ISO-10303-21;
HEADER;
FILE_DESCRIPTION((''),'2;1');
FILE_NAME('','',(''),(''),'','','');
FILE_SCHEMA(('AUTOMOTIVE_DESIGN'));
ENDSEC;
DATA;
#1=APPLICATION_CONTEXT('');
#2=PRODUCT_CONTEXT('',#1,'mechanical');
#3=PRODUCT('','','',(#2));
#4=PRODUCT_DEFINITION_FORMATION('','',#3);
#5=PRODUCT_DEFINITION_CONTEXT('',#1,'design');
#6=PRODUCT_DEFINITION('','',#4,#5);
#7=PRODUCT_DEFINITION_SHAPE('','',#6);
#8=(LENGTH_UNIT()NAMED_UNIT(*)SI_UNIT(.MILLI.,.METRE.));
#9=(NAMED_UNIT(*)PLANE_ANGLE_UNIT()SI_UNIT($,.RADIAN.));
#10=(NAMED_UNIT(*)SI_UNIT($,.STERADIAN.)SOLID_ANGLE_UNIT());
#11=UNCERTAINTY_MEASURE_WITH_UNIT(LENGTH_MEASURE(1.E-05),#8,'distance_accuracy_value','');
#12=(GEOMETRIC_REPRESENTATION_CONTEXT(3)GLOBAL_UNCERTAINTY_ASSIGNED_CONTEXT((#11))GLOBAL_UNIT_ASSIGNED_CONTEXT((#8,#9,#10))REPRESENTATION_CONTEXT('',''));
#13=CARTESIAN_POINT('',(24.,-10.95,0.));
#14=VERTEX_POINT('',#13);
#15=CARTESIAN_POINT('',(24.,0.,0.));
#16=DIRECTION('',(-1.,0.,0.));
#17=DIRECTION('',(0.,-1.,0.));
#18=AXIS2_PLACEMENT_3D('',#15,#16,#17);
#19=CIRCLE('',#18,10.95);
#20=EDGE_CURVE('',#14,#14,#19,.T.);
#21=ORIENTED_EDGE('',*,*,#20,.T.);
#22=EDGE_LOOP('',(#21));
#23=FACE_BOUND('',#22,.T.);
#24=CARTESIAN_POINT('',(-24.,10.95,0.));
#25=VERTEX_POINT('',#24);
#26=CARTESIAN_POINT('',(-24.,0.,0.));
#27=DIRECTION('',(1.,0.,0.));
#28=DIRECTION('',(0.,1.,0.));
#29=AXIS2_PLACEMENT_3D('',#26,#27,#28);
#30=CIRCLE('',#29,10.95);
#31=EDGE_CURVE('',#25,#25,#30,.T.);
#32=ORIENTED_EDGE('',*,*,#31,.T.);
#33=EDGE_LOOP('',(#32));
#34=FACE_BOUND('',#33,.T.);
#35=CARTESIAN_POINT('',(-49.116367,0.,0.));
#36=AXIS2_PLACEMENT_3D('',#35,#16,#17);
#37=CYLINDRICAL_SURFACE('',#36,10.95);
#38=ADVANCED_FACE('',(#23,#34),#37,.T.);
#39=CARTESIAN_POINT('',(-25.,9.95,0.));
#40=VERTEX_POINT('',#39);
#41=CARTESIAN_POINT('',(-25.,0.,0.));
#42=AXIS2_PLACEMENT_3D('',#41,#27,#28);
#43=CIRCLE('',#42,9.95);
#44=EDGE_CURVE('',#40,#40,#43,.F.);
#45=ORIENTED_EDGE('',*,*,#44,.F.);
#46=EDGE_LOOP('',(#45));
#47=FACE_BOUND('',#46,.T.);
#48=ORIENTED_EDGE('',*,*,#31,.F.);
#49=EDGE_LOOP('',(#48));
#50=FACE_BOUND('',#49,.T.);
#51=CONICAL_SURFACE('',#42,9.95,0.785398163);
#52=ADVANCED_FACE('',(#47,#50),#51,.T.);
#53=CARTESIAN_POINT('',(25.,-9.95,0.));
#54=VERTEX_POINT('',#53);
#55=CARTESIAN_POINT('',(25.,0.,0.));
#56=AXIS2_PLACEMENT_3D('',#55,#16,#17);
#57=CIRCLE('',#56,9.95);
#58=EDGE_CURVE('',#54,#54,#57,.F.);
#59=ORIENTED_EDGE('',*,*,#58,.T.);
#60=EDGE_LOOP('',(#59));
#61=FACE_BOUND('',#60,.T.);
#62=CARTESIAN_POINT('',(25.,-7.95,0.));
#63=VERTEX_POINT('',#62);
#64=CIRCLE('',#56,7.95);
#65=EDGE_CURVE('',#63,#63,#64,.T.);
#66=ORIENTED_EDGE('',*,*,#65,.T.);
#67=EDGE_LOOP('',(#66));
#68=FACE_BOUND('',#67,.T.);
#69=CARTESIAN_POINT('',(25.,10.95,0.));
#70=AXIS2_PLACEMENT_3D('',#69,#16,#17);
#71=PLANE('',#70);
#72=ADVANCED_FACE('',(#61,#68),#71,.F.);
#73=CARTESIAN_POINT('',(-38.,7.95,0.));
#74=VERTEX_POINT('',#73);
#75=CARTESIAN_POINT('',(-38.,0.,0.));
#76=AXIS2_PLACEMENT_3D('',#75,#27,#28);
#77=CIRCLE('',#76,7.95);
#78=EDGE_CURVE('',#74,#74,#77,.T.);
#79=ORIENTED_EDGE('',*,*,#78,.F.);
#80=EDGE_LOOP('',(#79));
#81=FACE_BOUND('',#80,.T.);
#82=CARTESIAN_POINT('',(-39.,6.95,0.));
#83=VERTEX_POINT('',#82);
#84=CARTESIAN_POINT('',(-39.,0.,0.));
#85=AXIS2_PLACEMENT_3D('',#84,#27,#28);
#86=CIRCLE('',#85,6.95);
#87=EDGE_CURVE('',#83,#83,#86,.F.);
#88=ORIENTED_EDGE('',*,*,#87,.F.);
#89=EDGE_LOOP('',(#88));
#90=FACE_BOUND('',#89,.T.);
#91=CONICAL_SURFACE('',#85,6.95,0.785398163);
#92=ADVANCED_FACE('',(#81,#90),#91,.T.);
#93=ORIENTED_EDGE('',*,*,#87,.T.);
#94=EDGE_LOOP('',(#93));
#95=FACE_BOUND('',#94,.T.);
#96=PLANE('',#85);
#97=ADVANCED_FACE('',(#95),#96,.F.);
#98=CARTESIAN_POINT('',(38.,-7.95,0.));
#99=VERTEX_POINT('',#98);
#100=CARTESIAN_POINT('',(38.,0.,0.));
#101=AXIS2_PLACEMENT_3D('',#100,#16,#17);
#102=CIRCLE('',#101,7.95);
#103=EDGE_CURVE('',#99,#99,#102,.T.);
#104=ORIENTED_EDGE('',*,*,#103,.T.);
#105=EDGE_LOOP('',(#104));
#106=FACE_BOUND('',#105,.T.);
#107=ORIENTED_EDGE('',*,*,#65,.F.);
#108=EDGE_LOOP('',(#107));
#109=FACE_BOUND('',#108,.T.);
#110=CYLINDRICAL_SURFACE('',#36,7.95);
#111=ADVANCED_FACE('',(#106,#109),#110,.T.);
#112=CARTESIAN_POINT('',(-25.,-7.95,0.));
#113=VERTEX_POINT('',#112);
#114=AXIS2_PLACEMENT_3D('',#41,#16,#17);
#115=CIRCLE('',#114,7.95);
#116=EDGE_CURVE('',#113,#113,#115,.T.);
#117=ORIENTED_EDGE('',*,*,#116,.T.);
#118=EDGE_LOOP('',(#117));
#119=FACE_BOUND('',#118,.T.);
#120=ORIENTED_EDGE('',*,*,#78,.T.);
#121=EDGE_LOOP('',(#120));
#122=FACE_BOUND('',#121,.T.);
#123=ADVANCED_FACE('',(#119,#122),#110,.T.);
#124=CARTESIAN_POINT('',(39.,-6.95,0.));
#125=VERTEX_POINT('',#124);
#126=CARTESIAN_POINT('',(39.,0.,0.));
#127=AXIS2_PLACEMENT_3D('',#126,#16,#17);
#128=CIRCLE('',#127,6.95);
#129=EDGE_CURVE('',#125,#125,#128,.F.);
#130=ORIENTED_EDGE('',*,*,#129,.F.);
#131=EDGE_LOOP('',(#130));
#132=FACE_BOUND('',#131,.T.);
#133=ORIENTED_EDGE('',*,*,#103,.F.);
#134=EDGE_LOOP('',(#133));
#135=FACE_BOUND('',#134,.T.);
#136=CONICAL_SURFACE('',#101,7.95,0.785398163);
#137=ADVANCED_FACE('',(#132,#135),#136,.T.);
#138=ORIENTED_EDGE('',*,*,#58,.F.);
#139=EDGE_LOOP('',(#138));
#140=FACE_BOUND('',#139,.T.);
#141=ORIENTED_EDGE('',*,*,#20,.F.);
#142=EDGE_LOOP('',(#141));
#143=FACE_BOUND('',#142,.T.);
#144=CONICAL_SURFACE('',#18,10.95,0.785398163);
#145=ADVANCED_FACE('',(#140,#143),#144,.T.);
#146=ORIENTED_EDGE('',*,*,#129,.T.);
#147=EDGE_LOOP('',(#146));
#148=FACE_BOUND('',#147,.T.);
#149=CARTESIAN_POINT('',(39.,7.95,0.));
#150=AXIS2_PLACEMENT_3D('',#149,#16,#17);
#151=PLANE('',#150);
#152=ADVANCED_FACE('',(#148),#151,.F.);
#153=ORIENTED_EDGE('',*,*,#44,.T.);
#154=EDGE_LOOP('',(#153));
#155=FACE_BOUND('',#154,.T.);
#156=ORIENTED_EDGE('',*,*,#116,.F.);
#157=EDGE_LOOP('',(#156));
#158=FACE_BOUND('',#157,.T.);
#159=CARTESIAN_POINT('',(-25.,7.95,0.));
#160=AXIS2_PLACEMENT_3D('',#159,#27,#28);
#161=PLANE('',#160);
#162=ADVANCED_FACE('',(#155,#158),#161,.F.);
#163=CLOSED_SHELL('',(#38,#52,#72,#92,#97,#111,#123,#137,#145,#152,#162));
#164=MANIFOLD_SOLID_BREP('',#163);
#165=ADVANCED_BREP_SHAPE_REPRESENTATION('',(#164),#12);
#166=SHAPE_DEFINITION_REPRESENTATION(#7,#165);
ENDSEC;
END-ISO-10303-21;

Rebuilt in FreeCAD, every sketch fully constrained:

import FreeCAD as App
import Part
import Sketcher
Q = App.Units.Quantity


def edges_at(feature, points):
    """Names of the edges that pass closest to the given points."""
    edges = feature.Shape.Edges
    near = lambda p: min(range(len(edges)), key=lambda i: edges[i].distToShape(Part.Vertex(*p))[0])
    return sorted({f"Edge{near(p) + 1}" for p in points})


def add_polygon(sketch, points):
    """Adds a closed chain of lines whose ends are joined by coincident constraints."""
    first, n = sketch.GeometryCount, len(points)
    for a, b in zip(points, points[1:] + points[:1]):
        sketch.addGeometry(Part.LineSegment(App.Vector(*a, 0), App.Vector(*b, 0)), False)
    for i in range(n):
        sketch.addConstraint(Sketcher.Constraint("Coincident", first + i, 2, first + (i + 1) % n, 1))

doc = App.newDocument("Part")
params = doc.addObject("Spreadsheet::Sheet", "Params")
for row, (alias, value) in enumerate([
    ("sketch1_width", "78 mm"),
    ("sketch1_width2", "14 mm"),
    ("sketch1_height", "3 mm"),
    ("sketch1_height2", "7.95 mm"),
    ("revolution_angle", "360 deg"),
    ("chamfer_size", "1 mm"),
], start=1):
    params.set(f"A{row}", alias)
    params.set(f"B{row}", "=" + value)
    params.setAlias(f"B{row}", alias)

body = doc.addObject("PartDesign::Body", "Body")

sketch1 = body.newObject("Sketcher::SketchObject", "Sketch")
sketch1.AttachmentSupport = (doc.getObject("XY_Plane"), [""])
sketch1.MapMode = "FlatFace"
add_polygon(sketch1, [(-39, 8), (-39, 0), (39, 0), (39, 8), (25, 8), (25, 10.9), (-25, 10.9), (-25, 8)])
sketch1.addConstraint(Sketcher.Constraint("Vertical", 0))
sketch1.addConstraint(Sketcher.Constraint("Horizontal", 1))
sketch1.addConstraint(Sketcher.Constraint("Vertical", 2))
sketch1.addConstraint(Sketcher.Constraint("Horizontal", 3))
sketch1.addConstraint(Sketcher.Constraint("Vertical", 4))
sketch1.addConstraint(Sketcher.Constraint("Horizontal", 5))
sketch1.addConstraint(Sketcher.Constraint("Vertical", 6))
sketch1.addConstraint(Sketcher.Constraint("Horizontal", 7))
sketch1.addConstraint(Sketcher.Constraint("Symmetric", 0, 2, 1, 2, -1, 1))
sketch1.addConstraint(Sketcher.Constraint("Symmetric", 3, 2, 6, 2, -2))
sketch1.addConstraint(Sketcher.Constraint("DistanceX", 1, 1, 1, 2, Q("78 mm")))
sketch1.addConstraint(Sketcher.Constraint("DistanceX", 3, 2, 3, 1, Q("14 mm")))
sketch1.addConstraint(Sketcher.Constraint("DistanceY", 4, 1, 4, 2, Q("3 mm")))
sketch1.addConstraint(Sketcher.Constraint("DistanceY", 0, 2, 0, 1, Q("7.95 mm")))
sketch1.setExpression("Constraints[18]", "Params.sketch1_width")
sketch1.setExpression("Constraints[19]", "Params.sketch1_width2")
sketch1.setExpression("Constraints[20]", "Params.sketch1_height")
sketch1.setExpression("Constraints[21]", "Params.sketch1_height2")
revolution = body.newObject("PartDesign::Revolution", "Revolution")
revolution.Profile = sketch1
revolution.ReferenceAxis = (sketch1, ["H_Axis"])
revolution.setExpression("Angle", "Params.revolution_angle")
doc.recompute()

chamfer = body.newObject("PartDesign::Chamfer", "Chamfer")
chamfer.Base = (revolution, edges_at(revolution, [
    (39, 7.95, 0),
    (25, 10.95, 0),
    (-25, 10.95, 0),
    (-39, 7.95, 0),
]))
chamfer.setExpression("Size", "Params.chamfer_size")

doc.recompute()
